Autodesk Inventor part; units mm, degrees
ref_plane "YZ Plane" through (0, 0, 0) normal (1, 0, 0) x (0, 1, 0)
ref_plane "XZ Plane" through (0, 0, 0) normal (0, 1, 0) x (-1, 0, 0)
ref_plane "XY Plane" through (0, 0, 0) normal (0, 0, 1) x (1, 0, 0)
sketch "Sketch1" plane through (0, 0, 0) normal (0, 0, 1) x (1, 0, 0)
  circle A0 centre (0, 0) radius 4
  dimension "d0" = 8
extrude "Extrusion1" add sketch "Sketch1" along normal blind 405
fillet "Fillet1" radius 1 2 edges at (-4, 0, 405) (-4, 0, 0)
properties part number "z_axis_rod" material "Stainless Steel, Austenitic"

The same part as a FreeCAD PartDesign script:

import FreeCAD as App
import Part
import Sketcher
from FreeCAD import Vector


def edges_at(feature, points):
    """Names of the edges that pass closest to the given points."""
    edges = feature.Shape.Edges
    near = lambda p: min(range(len(edges)), key=lambda i: edges[i].distToShape(Part.Vertex(*p))[0])
    return sorted({f"Edge{near(p) + 1}" for p in points})

doc = App.newDocument("Part")
body = doc.addObject("PartDesign::Body", "Body")

sketch1 = doc.addObject("Sketcher::SketchObject", "Sketch")
body.addObject(sketch1)
sketch1.AttachmentSupport = (doc.XY_Plane, [""])
sketch1.MapMode = "FlatFace"
sketch1.addGeometry(Part.Circle(Vector(0, 0, 0), Vector(0, 0, 1), 4), False)
sketch1.addConstraint(Sketcher.Constraint("Coincident", 0, 3, -1, 1))
sketch1.addConstraint(Sketcher.Constraint("Diameter", 0, 8.0))
pad1 = doc.addObject("PartDesign::Pad", "Pad")
body.addObject(pad1)
pad1.Profile = sketch1
pad1.Length = 405
doc.recompute()

fillet = doc.addObject("PartDesign::Fillet", "Fillet")
body.addObject(fillet)
fillet.Base = (pad1, edges_at(pad1, [(-4, 0, 405), (-4, 0, 0)]))
fillet.Radius = 1

doc.recompute()
